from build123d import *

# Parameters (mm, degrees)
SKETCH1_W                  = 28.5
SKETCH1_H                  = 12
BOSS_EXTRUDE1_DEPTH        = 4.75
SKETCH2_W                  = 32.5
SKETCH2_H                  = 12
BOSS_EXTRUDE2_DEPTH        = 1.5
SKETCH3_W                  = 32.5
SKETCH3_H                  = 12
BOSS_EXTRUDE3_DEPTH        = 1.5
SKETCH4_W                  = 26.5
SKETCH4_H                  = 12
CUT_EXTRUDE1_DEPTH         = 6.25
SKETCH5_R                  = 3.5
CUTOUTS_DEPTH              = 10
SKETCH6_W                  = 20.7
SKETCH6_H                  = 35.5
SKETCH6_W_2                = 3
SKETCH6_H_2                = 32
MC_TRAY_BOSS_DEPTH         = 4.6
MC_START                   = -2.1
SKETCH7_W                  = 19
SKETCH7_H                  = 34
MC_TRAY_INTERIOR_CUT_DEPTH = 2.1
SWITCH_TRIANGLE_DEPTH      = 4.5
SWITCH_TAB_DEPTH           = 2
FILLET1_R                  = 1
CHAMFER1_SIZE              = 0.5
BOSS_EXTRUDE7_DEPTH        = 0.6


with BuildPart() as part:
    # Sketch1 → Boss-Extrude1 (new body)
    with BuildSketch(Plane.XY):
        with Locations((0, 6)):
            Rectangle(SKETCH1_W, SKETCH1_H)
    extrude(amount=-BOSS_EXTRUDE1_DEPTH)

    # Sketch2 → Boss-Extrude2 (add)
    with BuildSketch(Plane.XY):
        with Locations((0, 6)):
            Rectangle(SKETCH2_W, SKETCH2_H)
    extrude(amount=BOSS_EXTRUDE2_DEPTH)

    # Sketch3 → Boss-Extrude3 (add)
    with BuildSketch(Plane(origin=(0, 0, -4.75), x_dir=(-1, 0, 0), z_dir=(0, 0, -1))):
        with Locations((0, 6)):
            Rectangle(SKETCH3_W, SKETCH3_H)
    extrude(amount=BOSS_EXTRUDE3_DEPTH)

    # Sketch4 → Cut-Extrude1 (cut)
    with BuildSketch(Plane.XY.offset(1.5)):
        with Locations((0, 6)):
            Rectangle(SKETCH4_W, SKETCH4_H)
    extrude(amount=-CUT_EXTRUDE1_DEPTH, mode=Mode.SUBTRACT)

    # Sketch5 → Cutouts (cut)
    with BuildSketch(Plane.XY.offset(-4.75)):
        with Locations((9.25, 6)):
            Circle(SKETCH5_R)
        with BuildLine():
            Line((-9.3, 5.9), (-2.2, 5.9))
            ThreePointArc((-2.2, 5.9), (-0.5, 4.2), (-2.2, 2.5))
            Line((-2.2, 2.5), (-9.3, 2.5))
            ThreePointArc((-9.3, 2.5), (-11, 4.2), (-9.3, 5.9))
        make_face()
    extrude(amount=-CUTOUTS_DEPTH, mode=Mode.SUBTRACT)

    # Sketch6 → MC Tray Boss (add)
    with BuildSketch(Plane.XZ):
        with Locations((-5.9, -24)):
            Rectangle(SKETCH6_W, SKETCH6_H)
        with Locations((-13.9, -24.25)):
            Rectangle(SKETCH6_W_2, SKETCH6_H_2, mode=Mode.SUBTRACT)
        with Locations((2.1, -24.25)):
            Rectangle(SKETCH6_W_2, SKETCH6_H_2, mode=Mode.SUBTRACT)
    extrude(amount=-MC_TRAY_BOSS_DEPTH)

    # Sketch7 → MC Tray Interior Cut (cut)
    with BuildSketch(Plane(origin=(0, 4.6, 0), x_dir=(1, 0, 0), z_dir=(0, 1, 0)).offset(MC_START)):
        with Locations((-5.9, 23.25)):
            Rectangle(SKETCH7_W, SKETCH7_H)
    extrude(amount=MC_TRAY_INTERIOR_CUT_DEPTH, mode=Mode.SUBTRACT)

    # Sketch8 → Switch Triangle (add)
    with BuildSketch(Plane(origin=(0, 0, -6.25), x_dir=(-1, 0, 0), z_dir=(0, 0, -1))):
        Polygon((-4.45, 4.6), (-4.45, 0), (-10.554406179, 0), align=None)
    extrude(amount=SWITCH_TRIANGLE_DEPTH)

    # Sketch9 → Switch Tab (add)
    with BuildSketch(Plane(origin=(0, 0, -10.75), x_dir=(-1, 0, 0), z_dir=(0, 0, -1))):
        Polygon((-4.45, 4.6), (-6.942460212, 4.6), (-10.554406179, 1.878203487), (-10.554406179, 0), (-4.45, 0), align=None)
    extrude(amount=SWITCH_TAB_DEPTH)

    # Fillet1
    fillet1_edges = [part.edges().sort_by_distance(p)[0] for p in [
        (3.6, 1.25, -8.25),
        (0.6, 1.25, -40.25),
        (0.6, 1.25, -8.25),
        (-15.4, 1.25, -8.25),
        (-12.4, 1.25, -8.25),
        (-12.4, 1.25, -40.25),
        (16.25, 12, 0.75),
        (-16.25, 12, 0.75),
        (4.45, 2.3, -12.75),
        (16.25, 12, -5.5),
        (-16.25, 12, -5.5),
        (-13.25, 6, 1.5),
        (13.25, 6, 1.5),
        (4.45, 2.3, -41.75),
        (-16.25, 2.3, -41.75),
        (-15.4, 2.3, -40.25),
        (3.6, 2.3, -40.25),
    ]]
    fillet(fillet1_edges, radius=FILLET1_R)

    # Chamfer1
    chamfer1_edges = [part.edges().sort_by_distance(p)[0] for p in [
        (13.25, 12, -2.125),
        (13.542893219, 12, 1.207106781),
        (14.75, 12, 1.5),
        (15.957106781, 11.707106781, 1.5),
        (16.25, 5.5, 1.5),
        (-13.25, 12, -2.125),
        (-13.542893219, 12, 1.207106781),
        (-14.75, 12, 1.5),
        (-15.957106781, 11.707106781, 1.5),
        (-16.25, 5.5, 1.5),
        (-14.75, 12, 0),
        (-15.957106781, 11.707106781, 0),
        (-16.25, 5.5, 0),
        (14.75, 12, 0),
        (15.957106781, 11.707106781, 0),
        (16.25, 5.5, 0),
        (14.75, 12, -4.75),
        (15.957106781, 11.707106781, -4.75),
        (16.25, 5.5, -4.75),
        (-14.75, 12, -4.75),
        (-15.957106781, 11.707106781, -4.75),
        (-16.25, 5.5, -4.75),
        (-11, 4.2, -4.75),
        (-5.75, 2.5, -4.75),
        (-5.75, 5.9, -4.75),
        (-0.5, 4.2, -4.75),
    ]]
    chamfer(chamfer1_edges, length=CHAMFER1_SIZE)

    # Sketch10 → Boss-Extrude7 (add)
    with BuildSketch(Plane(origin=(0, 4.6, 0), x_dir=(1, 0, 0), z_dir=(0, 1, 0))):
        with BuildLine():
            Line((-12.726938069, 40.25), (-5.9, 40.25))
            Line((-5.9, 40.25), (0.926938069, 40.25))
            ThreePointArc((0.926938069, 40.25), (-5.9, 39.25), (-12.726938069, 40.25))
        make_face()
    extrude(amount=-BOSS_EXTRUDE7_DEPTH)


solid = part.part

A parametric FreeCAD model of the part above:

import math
import FreeCAD as App
import Part
import Sketcher
from FreeCAD import Vector
Q = App.Units.Quantity


def edges_at(feature, points):
    """Names of the edges that pass closest to the given points."""
    edges = feature.Shape.Edges
    near = lambda p: min(range(len(edges)), key=lambda i: edges[i].distToShape(Part.Vertex(*p))[0])
    return sorted({f"Edge{near(p) + 1}" for p in points})


def add_polygon(sketch, points):
    """Adds a closed chain of lines whose ends are joined by coincident constraints."""
    first, n = sketch.GeometryCount, len(points)
    for a, b in zip(points, points[1:] + points[:1]):
        sketch.addGeometry(Part.LineSegment(App.Vector(*a, 0), App.Vector(*b, 0)), False)
    for i in range(n):
        sketch.addConstraint(Sketcher.Constraint("Coincident", first + i, 2, first + (i + 1) % n, 1))

doc = App.newDocument("Part")
body = doc.addObject("PartDesign::Body", "Body")

# Sketch on XY plane
sketch1 = doc.addObject("Sketcher::SketchObject", "Sketch")
body.addObject(sketch1)
sketch1.AttachmentSupport = (doc.XY_Plane, [""])
sketch1.MapMode = "FlatFace"
add_polygon(sketch1, [(-14, 12), (-14, 0), (14, 0), (14, 12)])  # lines 0-3
sketch1.addConstraint([
    Sketcher.Constraint("Vertical", 0),
    Sketcher.Constraint("Horizontal", 1),
    Sketcher.Constraint("Vertical", 2),
    Sketcher.Constraint("Horizontal", 3),
    Sketcher.Constraint("Symmetric", 0, 2, 1, 2, -1, 1),
    Sketcher.Constraint("DistanceY", 0, 2, 0, 1, 12.0),
    Sketcher.Constraint("DistanceX", 1, 1, 1, 2, 28.5),
])
pad1 = doc.addObject("PartDesign::Pad", "Pad")
body.addObject(pad1)
pad1.Profile = sketch1
pad1.Length = 4.75
pad1.Reversed = True

# Sketch on XY plane
sketch2 = doc.addObject("Sketcher::SketchObject", "Sketch001")
body.addObject(sketch2)
sketch2.AttachmentSupport = (doc.XY_Plane, [""])
sketch2.MapMode = "FlatFace"
add_polygon(sketch2, [(-16, 12), (-16, 0), (16, 0), (16, 12)])  # lines 0-3
sketch2.addConstraint([
    Sketcher.Constraint("Vertical", 0),
    Sketcher.Constraint("Horizontal", 1),
    Sketcher.Constraint("Vertical", 2),
    Sketcher.Constraint("Horizontal", 3),
    Sketcher.Constraint("Symmetric", 0, 2, 1, 2, -1, 1),
    Sketcher.Constraint("DistanceY", 0, 2, 0, 1, 12.0),
    Sketcher.Constraint("DistanceX", 1, 1, 1, 2, 32.5),
])
pad2 = doc.addObject("PartDesign::Pad", "Pad001")
body.addObject(pad2)
pad2.Profile = sketch2
pad2.Length = 1.5

# Sketch on XY plane
sketch3 = doc.addObject("Sketcher::SketchObject", "Sketch002")
body.addObject(sketch3)
sketch3.AttachmentSupport = (doc.XY_Plane, [""])
sketch3.MapMode = "FlatFace"
sketch3.AttachmentOffset = App.Placement(Vector(0, 0, -4.75), App.Rotation())
add_polygon(sketch3, [(16, 12), (16, 0), (-16, 0), (-16, 12)])  # lines 0-3
sketch3.addConstraint([
    Sketcher.Constraint("Vertical", 0),
    Sketcher.Constraint("Horizontal", 1),
    Sketcher.Constraint("Vertical", 2),
    Sketcher.Constraint("Horizontal", 3),
    Sketcher.Constraint("Symmetric", 0, 2, 1, 2, -1, 1),
    Sketcher.Constraint("DistanceY", 0, 2, 0, 1, 12.0),
    Sketcher.Constraint("DistanceX", 1, 2, 1, 1, 32.5),
])
pad3 = doc.addObject("PartDesign::Pad", "Pad002")
body.addObject(pad3)
pad3.Profile = sketch3
pad3.Length = 1.5
pad3.Reversed = True

# Sketch on XY plane
sketch4 = doc.addObject("Sketcher::SketchObject", "Sketch003")
body.addObject(sketch4)
sketch4.AttachmentSupport = (doc.XY_Plane, [""])
sketch4.MapMode = "FlatFace"
sketch4.AttachmentOffset = App.Placement(Vector(0, 0, 1.5), App.Rotation())
add_polygon(sketch4, [(-13, 12), (-13, 0), (13, 0), (13, 12)])  # lines 0-3
sketch4.addConstraint([
    Sketcher.Constraint("Vertical", 0),
    Sketcher.Constraint("Horizontal", 1),
    Sketcher.Constraint("Vertical", 2),
    Sketcher.Constraint("Horizontal", 3),
    Sketcher.Constraint("Symmetric", 0, 2, 1, 2, -1, 1),
    Sketcher.Constraint("DistanceY", 0, 2, 0, 1, 12.0),
    Sketcher.Constraint("DistanceX", 1, 1, 1, 2, 26.5),
])
pocket1 = doc.addObject("PartDesign::Pocket", "Pocket")
body.addObject(pocket1)
pocket1.Profile = sketch4
pocket1.Length = 6.25

# Sketch on XY plane
sketch5 = doc.addObject("Sketcher::SketchObject", "Sketch004")
body.addObject(sketch5)
sketch5.AttachmentSupport = (doc.XY_Plane, [""])
sketch5.MapMode = "FlatFace"
sketch5.AttachmentOffset = App.Placement(Vector(0, 0, -4.75), App.Rotation())
sketch5.addGeometry([
    Part.Circle(Vector(9.2, 6, 0), Vector(0, 0, 1), 3.5),  # 0
    Part.LineSegment(Vector(-2.2, 5.9, 0), Vector(-9.3, 5.9, 0)),  # 1
    Part.ArcOfCircle(Part.Circle(Vector(-9.3, 4.2, 0), Vector(0, 0, 1), 1.7), math.radians(90), math.radians(270)),  # 2
    Part.LineSegment(Vector(-9.3, 2.5, 0), Vector(-2.2, 2.5, 0)),  # 3
    Part.ArcOfCircle(Part.Circle(Vector(-2.2, 4.2, 0), Vector(0, 0, 1), 1.7), math.radians(-90), math.radians(90)),  # 4
], False)
sketch5.addConstraint([
    Sketcher.Constraint("Tangent", 1, 2, 2, 1),
    Sketcher.Constraint("Tangent", 2, 2, 3, 1),
    Sketcher.Constraint("Tangent", 3, 2, 4, 1),
    Sketcher.Constraint("Tangent", 4, 2, 1, 1),
    Sketcher.Constraint("Horizontal", 1),
    Sketcher.Constraint("Horizontal", 3),
    Sketcher.Constraint("Diameter", 0, 7.0),
    Sketcher.Constraint("Radius", 2, 1.7),
    Sketcher.Constraint("DistanceX", 1, 2, 1, 1, 7.1),
    Sketcher.Constraint("DistanceY", -1, 1, 0, 3, 6.0),
    Sketcher.Constraint("DistanceX", 2, 3, -1, 1, 9.3),
    Sketcher.Constraint("DistanceY", -1, 1, 2, 3, 4.2),
    Sketcher.Constraint("DistanceX", -1, 1, 0, 3, 9.25),
])
pocket2 = doc.addObject("PartDesign::Pocket", "Pocket001")
body.addObject(pocket2)
pocket2.Profile = sketch5
pocket2.Length = 10

# Sketch on XZ plane
sketch6 = doc.addObject("Sketcher::SketchObject", "Sketch005")
body.addObject(sketch6)
sketch6.AttachmentSupport = (doc.XZ_Plane, [""])
sketch6.MapMode = "FlatFace"
add_polygon(sketch6, [(-16.2, -6.2), (-16.2, -41.8), (4.5, -41.8), (4.5, -6.2)])  # lines 0-3
add_polygon(sketch6, [(-12.4, -40.2), (-15.4, -40.2), (-15.4, -8.2), (-12.4, -8.2)])  # lines 4-7
add_polygon(sketch6, [(3.6, -40.2), (0.6, -40.2), (0.6, -8.2), (3.6, -8.2)])  # lines 8-11
sketch6.addConstraint([
    Sketcher.Constraint("Vertical", 0),
    Sketcher.Constraint("Horizontal", 1),
    Sketcher.Constraint("Vertical", 2),
    Sketcher.Constraint("Horizontal", 3),
    Sketcher.Constraint("Horizontal", 4),
    Sketcher.Constraint("Vertical", 5),
    Sketcher.Constraint("Horizontal", 6),
    Sketcher.Constraint("Vertical", 7),
    Sketcher.Constraint("Horizontal", 8),
    Sketcher.Constraint("Vertical", 9),
    Sketcher.Constraint("Horizontal", 10),
    Sketcher.Constraint("Vertical", 11),
    Sketcher.Constraint("Horizontal", 7, 2, 8, 2),
    Sketcher.Constraint("Horizontal", 6, 2, 9, 2),
    Sketcher.Constraint("Equal", 6, 8),
    Sketcher.Constraint("DistanceX", 4, 2, 4, 1, 3.0),
    Sketcher.Constraint("DistanceY", 5, 1, 5, 2, 32.0),
    Sketcher.Constraint("DistanceX", 1, 1, 1, 2, 20.7),
    Sketcher.Constraint("DistanceY", 0, 2, 0, 1, 35.5),
    Sketcher.Constraint("DistanceY", 4, 2, 3, 2, 34.0),
    Sketcher.Constraint("DistanceX", 7, 2, 8, 2, 13.0),
    Sketcher.Constraint("DistanceX", 4, 2, -1, 1, 15.4),
    Sketcher.Constraint("DistanceX", 0, 2, -1, 1, 16.25),
    Sketcher.Constraint("DistanceY", 0, 2, -1, 1, 41.75),
])
pad4 = doc.addObject("PartDesign::Pad", "Pad003")
body.addObject(pad4)
pad4.Profile = sketch6
pad4.Length = 4.6
pad4.Reversed = True

# Sketch on XZ plane
sketch7 = doc.addObject("Sketcher::SketchObject", "Sketch006")
body.addObject(sketch7)
sketch7.AttachmentSupport = (doc.XZ_Plane, [""])
sketch7.MapMode = "FlatFace"
sketch7.AttachmentOffset = App.Placement(Vector(0, 0, -2.5), App.Rotation())
add_polygon(sketch7, [(-15, -40), (-15, -6), (4, -6), (4, -40)])  # lines 0-3
sketch7.addConstraint([
    Sketcher.Constraint("Vertical", 0),
    Sketcher.Constraint("Horizontal", 1),
    Sketcher.Constraint("Vertical", 2),
    Sketcher.Constraint("Horizontal", 3),
    Sketcher.Constraint("DistanceX", 1, 1, 1, 2, 19.0),
    Sketcher.Constraint("DistanceY", 0, 1, 0, 2, 34.0),
    Sketcher.Constraint("DistanceX", 0, 2, -1, 1, 15.4),
    Sketcher.Constraint("DistanceY", 0, 2, -1, 1, 6.25),
])
pocket3 = doc.addObject("PartDesign::Pocket", "Pocket002")
body.addObject(pocket3)
pocket3.Profile = sketch7
pocket3.Length = 2.1

# Sketch on XY plane
sketch8 = doc.addObject("Sketcher::SketchObject", "Sketch007")
body.addObject(sketch8)
sketch8.AttachmentSupport = (doc.XY_Plane, [""])
sketch8.MapMode = "FlatFace"
sketch8.AttachmentOffset = App.Placement(Vector(0, 0, -6.25), App.Rotation())
add_polygon(sketch8, [(4.5, 0), (4.5, 4.6), (10.6, 0)])  # lines 0-2
sketch8.addConstraint([
    Sketcher.Constraint("Vertical", 0),
    Sketcher.Constraint("Horizontal", 2),
    Sketcher.Constraint("PointOnObject", 1, 2, -1),
    Sketcher.Constraint("Angle", 1, Q("-37 deg")),
    Sketcher.Constraint("DistanceY", 0, 1, 0, 2, 4.6),
    Sketcher.Constraint("DistanceX", -1, 1, 0, 2, 4.45),
])
pad5 = doc.addObject("PartDesign::Pad", "Pad004")
body.addObject(pad5)
pad5.Profile = sketch8
pad5.Length = 4.5
pad5.Reversed = True

# Sketch on XY plane
sketch9 = doc.addObject("Sketcher::SketchObject", "Sketch008")
body.addObject(sketch9)
sketch9.AttachmentSupport = (doc.XY_Plane, [""])
sketch9.MapMode = "FlatFace"
sketch9.AttachmentOffset = App.Placement(Vector(0, 0, -10.75), App.Rotation())
add_polygon(sketch9, [(4.5, 4.6), (6.9, 4.6), (10.6, 1.9), (10.6, 0), (4.5, 0)])  # lines 0-4
sketch9.addConstraint([
    Sketcher.Constraint("Horizontal", 0),
    Sketcher.Constraint("Vertical", 2),
    Sketcher.Constraint("Horizontal", 3),
    Sketcher.Constraint("Vertical", 4),
    Sketcher.Constraint("PointOnObject", 2, 2, -1),
    Sketcher.Constraint("Angle", 1, Q("-37 deg")),
    Sketcher.Constraint("DistanceY", 4, 1, 4, 2, 4.6),
    Sketcher.Constraint("DistanceX", -1, 1, 3, 2, 4.45),
    Sketcher.Constraint("DistanceX", 0, 1, 0, 2, 2.49246),
    Sketcher.Constraint("DistanceX", 3, 2, 3, 1, 6.104406),
])
pad6 = doc.addObject("PartDesign::Pad", "Pad005")
body.addObject(pad6)
pad6.Profile = sketch9
pad6.Length = 2
pad6.Reversed = True
doc.recompute()

fillet = doc.addObject("PartDesign::Fillet", "Fillet")
body.addObject(fillet)
fillet.Base = (pad6, edges_at(pad6, [
    (3.6, 1.25, -8.25),
    (0.6, 1.25, -40.25),
    (0.6, 1.25, -8.25),
    (-15.4, 1.25, -8.25),
    (-12.4, 1.25, -8.25),
    (-12.4, 1.25, -40.25),
    (16.25, 12, 0.75),
    (-16.25, 12, 0.75),
    (4.45, 2.3, -12.75),
    (16.25, 12, -5.5),
    (-16.25, 12, -5.5),
    (-13.25, 6, 1.5),
    (13.25, 6, 1.5),
    (4.45, 2.3, -41.75),
    (-16.25, 2.3, -41.75),
    (-15.4, 2.3, -40.25),
    (3.6, 2.3, -40.25),
]))
fillet.Radius = 1
doc.recompute()

chamfer = doc.addObject("PartDesign::Chamfer", "Chamfer")
body.addObject(chamfer)
chamfer.Base = (fillet, edges_at(fillet, [
    (13.25, 12, -2.125),
    (13.543, 12, 1.207),
    (14.75, 12, 1.5),
    (15.957, 11.707, 1.5),
    (16.25, 5.5, 1.5),
    (-13.25, 12, -2.125),
    (-13.543, 12, 1.207),
    (-14.75, 12, 1.5),
    (-15.957, 11.707, 1.5),
    (-16.25, 5.5, 1.5),
    (-14.75, 12, 0),
    (-15.957, 11.707, 0),
    (-16.25, 5.5, 0),
    (14.75, 12, 0),
    (15.957, 11.707, 0),
    (16.25, 5.5, 0),
    (14.75, 12, -4.75),
    (15.957, 11.707, -4.75),
    (16.25, 5.5, -4.75),
    (-14.75, 12, -4.75),
    (-15.957, 11.707, -4.75),
    (-16.25, 5.5, -4.75),
    (-11, 4.2, -4.75),
    (-5.75, 2.5, -4.75),
    (-5.75, 5.9, -4.75),
    (-0.5, 4.2, -4.75),
]))
chamfer.Size = 0.5

# Sketch on XZ plane
sketch10 = doc.addObject("Sketcher::SketchObject", "Sketch009")
body.addObject(sketch10)
sketch10.AttachmentSupport = (doc.XZ_Plane, [""])
sketch10.MapMode = "FlatFace"
sketch10.AttachmentOffset = App.Placement(Vector(0, 0, -4.6), App.Rotation())
sketch10.addGeometry([
    Part.LineSegment(Vector(1, -40, 0), Vector(-13, -40, 0)),
    Part.ArcOfCircle(Part.Circle(Vector(-6, -63, 0), Vector(0, 0, 1), 24), math.radians(73), math.radians(107)),
], False)
sketch10.addConstraint([
    Sketcher.Constraint("Coincident", 0, 1, 1, 1),
    Sketcher.Constraint("Coincident", 1, 2, 0, 2),
    Sketcher.Constraint("Horizontal", 0),
    Sketcher.Constraint("DistanceX", 1, 3, -1, 1, 5.9),
    Sketcher.Constraint("DistanceY", 0, 1, -1, 1, 40.25),
    Sketcher.Constraint("Radius", 1, 23.803542),
    Sketcher.Constraint("DistanceX", 0, 2, 0, 1, 13.653876),
])
pad7 = doc.addObject("PartDesign::Pad", "Pad006")
body.addObject(pad7)
pad7.Profile = sketch10
pad7.Length = 0.6

doc.recompute()
